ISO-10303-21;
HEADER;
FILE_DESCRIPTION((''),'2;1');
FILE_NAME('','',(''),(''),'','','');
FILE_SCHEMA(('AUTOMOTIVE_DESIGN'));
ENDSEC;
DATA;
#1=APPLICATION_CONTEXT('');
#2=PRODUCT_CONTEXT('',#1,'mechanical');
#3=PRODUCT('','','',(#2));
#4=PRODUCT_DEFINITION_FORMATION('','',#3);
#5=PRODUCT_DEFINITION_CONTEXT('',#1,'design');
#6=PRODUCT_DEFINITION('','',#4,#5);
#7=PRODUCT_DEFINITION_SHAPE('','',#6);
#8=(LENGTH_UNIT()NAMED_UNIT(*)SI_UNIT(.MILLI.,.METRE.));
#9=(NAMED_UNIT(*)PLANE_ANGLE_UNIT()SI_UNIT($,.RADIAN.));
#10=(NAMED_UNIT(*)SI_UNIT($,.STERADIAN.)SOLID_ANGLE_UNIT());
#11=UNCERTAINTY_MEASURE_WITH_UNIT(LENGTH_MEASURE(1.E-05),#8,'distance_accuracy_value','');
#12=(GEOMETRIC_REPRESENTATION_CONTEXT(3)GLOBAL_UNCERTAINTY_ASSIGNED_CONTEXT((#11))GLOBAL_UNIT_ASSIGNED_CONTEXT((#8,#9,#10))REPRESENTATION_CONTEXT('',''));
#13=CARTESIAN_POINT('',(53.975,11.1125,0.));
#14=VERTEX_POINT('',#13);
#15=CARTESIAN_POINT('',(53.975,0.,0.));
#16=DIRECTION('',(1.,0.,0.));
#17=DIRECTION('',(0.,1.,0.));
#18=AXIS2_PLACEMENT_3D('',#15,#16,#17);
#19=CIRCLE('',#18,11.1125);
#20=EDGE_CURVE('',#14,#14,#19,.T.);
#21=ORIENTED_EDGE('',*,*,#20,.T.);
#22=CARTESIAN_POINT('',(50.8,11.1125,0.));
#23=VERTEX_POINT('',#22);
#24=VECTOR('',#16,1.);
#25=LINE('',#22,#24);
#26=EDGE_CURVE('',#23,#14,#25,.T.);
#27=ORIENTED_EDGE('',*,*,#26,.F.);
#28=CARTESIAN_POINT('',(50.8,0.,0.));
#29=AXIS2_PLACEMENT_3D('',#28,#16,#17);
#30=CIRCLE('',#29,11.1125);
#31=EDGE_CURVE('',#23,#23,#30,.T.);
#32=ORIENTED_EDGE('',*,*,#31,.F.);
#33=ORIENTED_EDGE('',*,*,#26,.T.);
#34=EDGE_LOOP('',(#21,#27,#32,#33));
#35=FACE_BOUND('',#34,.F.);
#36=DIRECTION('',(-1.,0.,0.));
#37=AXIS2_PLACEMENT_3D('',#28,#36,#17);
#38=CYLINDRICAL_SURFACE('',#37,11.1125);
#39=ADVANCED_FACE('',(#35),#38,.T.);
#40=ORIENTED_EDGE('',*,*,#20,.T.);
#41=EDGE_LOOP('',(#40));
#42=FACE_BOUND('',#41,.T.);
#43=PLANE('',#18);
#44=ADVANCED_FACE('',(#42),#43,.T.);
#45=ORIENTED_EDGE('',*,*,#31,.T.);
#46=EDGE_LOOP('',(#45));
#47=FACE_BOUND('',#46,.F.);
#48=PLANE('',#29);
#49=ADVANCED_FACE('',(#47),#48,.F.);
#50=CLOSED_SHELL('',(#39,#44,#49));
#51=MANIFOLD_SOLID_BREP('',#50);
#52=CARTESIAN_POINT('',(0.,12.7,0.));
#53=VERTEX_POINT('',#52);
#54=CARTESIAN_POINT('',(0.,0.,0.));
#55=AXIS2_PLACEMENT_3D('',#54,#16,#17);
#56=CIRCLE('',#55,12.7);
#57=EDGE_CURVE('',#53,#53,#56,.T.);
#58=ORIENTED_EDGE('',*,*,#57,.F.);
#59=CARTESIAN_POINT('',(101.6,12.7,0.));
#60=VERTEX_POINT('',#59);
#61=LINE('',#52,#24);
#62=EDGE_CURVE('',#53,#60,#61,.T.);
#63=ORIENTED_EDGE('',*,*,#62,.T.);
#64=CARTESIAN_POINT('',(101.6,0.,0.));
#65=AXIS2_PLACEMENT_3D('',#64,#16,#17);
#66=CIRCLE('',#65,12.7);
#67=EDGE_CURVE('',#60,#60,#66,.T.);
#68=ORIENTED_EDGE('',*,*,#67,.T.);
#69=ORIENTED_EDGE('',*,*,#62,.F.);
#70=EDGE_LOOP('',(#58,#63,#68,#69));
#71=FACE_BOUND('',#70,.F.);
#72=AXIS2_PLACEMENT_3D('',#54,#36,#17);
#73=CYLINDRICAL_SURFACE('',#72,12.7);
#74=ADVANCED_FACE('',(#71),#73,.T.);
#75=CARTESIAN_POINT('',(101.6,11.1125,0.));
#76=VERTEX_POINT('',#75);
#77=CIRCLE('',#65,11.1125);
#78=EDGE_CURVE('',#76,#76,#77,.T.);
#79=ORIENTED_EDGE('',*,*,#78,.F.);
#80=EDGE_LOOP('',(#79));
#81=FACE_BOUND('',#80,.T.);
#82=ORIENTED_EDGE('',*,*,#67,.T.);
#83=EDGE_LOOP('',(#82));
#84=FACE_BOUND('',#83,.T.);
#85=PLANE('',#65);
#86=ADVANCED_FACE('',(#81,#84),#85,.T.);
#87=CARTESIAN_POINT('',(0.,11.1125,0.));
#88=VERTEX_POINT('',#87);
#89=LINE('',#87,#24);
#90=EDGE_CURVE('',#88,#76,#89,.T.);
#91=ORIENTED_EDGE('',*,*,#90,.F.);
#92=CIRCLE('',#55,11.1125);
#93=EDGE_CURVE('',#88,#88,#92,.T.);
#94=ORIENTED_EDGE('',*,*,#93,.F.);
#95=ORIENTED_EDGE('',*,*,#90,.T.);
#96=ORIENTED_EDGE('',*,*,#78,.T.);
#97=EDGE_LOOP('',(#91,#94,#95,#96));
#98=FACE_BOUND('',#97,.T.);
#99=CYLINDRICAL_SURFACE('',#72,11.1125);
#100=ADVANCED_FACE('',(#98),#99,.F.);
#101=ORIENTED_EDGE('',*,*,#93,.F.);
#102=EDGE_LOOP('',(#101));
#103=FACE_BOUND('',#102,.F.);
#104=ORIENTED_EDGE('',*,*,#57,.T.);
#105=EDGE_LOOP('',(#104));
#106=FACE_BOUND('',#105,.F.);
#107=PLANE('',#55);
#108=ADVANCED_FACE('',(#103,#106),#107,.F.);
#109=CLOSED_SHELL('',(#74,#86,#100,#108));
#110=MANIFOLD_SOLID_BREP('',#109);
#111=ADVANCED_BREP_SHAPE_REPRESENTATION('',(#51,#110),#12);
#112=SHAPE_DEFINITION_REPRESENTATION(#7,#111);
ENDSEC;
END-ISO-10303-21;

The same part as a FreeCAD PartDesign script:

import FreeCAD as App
import Part
import Sketcher
from FreeCAD import Vector
Q = App.Units.Quantity

doc = App.newDocument("Part")
body = doc.addObject("PartDesign::Body", "Body")

sketch1 = body.newObject("Sketcher::SketchObject", "Sketch")
sketch1.AttachmentSupport = (doc.getObject("YZ_Plane"), [""])
sketch1.MapMode = "FlatFace"
sketch1.addGeometry([
    Part.Circle(Vector(0, 0, 0), Vector(0, 0, 1), 13),
    Part.Circle(Vector(0, 0, 0), Vector(0, 0, 1), 11),
], False)
sketch1.addConstraint([
    Sketcher.Constraint("Coincident", 0, 3, -1, 1),
    Sketcher.Constraint("Coincident", 1, 3, -1, 1),
    Sketcher.Constraint("Diameter", 0, Q("1 in")),
    Sketcher.Constraint("Diameter", 1, Q("0.875 in")),
])
pad1 = body.newObject("PartDesign::Pad", "Pad")
pad1.Profile = sketch1
pad1.Length = Q("4 in")
body2 = doc.addObject("PartDesign::Body", "Body001")

sketch2 = body2.newObject("Sketcher::SketchObject", "Sketch001")
sketch2.AttachmentSupport = (doc.getObject("YZ_Plane001"), [""])
sketch2.MapMode = "FlatFace"
sketch2.AttachmentOffset = App.Placement(Vector(0, 0, 2 * 25.4), App.Rotation())
sketch2.addGeometry(Part.Circle(Vector(0, 0, 0), Vector(0, 0, 1), 11), False)
sketch2.addConstraint([
    Sketcher.Constraint("Coincident", 0, 3, -1, 1),
    Sketcher.Constraint("Diameter", 0, Q("0.875 in")),
])
pad2 = body2.newObject("PartDesign::Pad", "Pad001")
pad2.Profile = sketch2
pad2.Length = Q("0.125 in")

doc.recompute()
